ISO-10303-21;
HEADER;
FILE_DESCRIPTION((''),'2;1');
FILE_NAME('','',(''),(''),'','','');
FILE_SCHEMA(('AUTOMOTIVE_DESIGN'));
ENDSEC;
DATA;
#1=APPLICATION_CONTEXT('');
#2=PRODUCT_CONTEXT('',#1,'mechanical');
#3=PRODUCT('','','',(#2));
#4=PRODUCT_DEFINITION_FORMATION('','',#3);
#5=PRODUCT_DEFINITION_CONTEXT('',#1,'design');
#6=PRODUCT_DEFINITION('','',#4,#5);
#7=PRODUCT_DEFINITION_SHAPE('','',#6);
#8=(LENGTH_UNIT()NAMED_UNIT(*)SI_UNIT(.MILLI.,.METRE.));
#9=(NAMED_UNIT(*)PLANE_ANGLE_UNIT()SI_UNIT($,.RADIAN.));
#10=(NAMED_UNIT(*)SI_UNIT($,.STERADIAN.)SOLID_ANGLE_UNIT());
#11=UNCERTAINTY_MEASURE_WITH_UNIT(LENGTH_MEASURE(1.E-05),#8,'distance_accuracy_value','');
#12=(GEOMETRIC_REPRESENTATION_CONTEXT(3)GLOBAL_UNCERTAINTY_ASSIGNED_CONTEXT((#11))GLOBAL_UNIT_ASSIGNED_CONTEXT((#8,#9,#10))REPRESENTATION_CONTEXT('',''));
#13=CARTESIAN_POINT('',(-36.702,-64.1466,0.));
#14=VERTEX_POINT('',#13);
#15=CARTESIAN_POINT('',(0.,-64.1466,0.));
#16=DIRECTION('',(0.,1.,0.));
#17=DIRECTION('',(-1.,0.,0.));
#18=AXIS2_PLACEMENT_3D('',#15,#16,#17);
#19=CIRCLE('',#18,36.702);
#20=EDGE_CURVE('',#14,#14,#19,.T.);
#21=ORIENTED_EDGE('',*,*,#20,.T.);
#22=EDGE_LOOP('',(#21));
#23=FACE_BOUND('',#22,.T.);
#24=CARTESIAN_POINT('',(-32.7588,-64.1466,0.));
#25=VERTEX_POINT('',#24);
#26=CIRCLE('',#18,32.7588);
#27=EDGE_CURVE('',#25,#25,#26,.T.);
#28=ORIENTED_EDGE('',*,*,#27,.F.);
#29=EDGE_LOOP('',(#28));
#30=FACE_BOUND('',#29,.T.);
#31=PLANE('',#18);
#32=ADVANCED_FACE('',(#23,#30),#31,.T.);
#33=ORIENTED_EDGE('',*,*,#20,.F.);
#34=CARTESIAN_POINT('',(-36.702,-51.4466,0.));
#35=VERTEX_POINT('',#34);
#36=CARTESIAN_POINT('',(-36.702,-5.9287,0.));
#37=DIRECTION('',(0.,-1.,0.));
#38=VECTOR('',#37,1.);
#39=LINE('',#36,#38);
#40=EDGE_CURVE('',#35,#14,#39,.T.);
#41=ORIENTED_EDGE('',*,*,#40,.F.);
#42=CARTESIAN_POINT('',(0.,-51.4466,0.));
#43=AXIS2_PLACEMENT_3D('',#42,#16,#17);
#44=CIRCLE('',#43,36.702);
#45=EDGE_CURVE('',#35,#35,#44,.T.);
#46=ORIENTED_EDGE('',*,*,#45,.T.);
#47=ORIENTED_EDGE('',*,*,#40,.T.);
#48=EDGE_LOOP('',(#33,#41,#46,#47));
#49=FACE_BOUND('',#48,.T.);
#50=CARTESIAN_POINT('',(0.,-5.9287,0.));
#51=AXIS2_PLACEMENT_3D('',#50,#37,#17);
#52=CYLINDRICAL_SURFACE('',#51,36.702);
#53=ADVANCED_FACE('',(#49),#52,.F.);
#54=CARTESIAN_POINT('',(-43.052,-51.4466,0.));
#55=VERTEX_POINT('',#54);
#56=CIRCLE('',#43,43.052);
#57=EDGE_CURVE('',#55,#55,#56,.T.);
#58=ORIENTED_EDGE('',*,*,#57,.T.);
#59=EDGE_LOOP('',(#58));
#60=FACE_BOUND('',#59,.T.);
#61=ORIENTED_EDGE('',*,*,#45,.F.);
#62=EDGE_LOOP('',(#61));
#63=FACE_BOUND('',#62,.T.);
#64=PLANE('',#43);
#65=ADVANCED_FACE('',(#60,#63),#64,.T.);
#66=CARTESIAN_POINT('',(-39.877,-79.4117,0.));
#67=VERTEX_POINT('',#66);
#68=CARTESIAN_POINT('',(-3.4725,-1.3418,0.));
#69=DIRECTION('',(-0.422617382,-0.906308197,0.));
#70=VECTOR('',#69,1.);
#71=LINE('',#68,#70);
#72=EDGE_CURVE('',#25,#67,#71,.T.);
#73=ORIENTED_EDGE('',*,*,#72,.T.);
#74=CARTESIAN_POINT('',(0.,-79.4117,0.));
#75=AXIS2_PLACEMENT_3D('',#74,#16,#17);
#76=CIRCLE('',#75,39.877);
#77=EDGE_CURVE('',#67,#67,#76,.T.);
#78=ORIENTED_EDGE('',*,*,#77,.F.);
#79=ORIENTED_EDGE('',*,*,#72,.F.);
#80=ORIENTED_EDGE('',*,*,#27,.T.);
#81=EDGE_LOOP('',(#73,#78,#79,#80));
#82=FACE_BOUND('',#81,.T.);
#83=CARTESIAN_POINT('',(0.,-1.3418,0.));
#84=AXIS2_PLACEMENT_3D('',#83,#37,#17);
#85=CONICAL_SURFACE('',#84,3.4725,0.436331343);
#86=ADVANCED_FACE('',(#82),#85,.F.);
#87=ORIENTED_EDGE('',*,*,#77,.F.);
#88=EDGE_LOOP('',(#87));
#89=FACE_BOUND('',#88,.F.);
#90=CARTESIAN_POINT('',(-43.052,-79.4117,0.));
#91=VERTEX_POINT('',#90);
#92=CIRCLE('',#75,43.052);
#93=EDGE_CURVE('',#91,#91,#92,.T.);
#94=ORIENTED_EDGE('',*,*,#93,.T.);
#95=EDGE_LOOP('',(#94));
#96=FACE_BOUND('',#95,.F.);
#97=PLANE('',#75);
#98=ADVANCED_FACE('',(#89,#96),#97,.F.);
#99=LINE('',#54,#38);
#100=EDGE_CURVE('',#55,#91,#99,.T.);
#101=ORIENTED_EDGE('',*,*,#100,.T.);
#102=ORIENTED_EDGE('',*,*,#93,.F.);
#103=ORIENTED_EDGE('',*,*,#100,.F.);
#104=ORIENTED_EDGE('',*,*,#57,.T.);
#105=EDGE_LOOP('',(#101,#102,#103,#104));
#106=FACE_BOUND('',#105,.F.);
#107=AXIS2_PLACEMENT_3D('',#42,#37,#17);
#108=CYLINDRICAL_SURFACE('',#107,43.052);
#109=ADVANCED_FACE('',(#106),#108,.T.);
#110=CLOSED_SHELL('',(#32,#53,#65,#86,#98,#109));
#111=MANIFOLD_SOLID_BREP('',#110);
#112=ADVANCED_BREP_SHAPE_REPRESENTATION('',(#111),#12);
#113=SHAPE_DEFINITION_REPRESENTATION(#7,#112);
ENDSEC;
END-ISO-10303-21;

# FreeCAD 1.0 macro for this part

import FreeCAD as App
import Part
import Sketcher

V = App.Vector
Q = App.Units.Quantity


def add_polygon(sketch, points):
    """Adds a closed chain of lines whose ends are joined by coincident constraints."""
    first, n = sketch.GeometryCount, len(points)
    for a, b in zip(points, points[1:] + points[:1]):
        sketch.addGeometry(Part.LineSegment(App.Vector(*a, 0), App.Vector(*b, 0)), False)
    for i in range(n):
        sketch.addConstraint(Sketcher.Constraint("Coincident", first + i, 2, first + (i + 1) % n, 1))

doc = App.newDocument("Part")
body = doc.addObject("PartDesign::Body", "Body")

# Sketch on XY plane
sketch1 = doc.addObject("Sketcher::SketchObject", "Sketch")
body.addObject(sketch1)
sketch1.AttachmentSupport = (doc.XY_Plane, [""])
sketch1.MapMode = "FlatFace"
add_polygon(sketch1, [(-39.9, -79.4), (-32.8, -64.1), (-36.7, -64.1), (-36.7, -51.4), (-43.1, -51.4), (-43.1, -79.4)])  # lines 0-5
sketch1.addConstraint([
    Sketcher.Constraint("Horizontal", 1),
    Sketcher.Constraint("Vertical", 2),
    Sketcher.Constraint("Horizontal", 3),
    Sketcher.Constraint("Vertical", 4),
    Sketcher.Constraint("Horizontal", 5),
    Sketcher.Constraint("DistanceY", 2, 1, 2, 2, Q("0.5 in")),
    Sketcher.Constraint("DistanceX", 3, 2, 3, 1, Q("0.25 in")),
    Sketcher.Constraint("DistanceX", 5, 1, 5, 2, Q("0.125 in")),
    Sketcher.Constraint("Angle", 0, Q("65 deg")),
    Sketcher.Constraint("DistanceY", 4, 2, 4, 1, Q("1.101 in")),
    Sketcher.Constraint("DistanceX", 0, 2, -1, 1, Q("32.7588 mm")),
    Sketcher.Constraint("DistanceY", 0, 2, -1, 1, Q("64.1466 mm")),
])
revolution = doc.addObject("PartDesign::Revolution", "Revolution")
body.addObject(revolution)
revolution.Profile = sketch1
revolution.ReferenceAxis = (sketch1, ["V_Axis"])
revolution.Angle = 360

doc.recompute()
